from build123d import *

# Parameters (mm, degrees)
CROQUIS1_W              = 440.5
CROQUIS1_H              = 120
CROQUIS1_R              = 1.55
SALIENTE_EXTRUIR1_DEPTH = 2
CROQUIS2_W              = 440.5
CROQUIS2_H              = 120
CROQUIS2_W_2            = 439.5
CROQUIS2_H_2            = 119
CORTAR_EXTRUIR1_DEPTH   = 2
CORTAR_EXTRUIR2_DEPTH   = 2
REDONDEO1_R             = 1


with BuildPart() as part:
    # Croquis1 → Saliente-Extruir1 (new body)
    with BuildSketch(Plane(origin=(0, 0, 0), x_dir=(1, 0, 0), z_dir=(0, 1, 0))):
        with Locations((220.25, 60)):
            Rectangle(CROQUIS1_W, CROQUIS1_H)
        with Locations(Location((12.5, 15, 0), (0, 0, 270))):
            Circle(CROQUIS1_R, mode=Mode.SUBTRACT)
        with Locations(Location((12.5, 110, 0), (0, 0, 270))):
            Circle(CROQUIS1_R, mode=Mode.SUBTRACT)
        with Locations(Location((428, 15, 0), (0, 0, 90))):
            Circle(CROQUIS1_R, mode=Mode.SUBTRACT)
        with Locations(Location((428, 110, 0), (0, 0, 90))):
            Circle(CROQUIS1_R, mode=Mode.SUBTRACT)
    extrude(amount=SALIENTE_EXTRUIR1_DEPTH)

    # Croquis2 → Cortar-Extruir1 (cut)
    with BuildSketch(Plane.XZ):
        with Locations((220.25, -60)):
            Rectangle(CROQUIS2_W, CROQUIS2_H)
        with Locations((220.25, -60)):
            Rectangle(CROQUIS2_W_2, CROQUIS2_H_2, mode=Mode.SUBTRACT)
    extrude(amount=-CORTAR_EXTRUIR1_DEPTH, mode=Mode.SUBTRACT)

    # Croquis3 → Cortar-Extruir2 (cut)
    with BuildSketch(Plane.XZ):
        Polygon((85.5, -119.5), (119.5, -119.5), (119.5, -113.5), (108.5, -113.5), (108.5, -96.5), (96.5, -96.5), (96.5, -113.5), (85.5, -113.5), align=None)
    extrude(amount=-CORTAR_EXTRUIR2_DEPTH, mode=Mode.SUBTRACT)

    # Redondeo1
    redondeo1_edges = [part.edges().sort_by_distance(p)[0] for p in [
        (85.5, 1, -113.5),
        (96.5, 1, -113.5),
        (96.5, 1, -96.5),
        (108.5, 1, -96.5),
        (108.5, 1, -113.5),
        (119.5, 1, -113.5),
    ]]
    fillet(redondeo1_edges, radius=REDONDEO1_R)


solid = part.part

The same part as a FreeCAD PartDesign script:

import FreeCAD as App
import Part
import Sketcher
from FreeCAD import Vector
Q = App.Units.Quantity


def edges_at(feature, points):
    """Names of the edges that pass closest to the given points."""
    edges = feature.Shape.Edges
    near = lambda p: min(range(len(edges)), key=lambda i: edges[i].distToShape(Part.Vertex(*p))[0])
    return sorted({f"Edge{near(p) + 1}" for p in points})


def add_polygon(sketch, points):
    """Adds a closed chain of lines whose ends are joined by coincident constraints."""
    first, n = sketch.GeometryCount, len(points)
    for a, b in zip(points, points[1:] + points[:1]):
        sketch.addGeometry(Part.LineSegment(App.Vector(*a, 0), App.Vector(*b, 0)), False)
    for i in range(n):
        sketch.addConstraint(Sketcher.Constraint("Coincident", first + i, 2, first + (i + 1) % n, 1))

doc = App.newDocument("Part")
params = doc.addObject("Spreadsheet::Sheet", "Params")
for row, (alias, value) in enumerate([
    ("sketch1_diameter", "3.1 mm"),
    ("sketch1_height", "120 mm"),
    ("sketch1_width", "440.5 mm"),
    ("pad1_length", "2 mm"),
    ("sketch2_height", "120 mm"),
    ("sketch2_height2", "119 mm"),
    ("sketch2_width", "440.5 mm"),
    ("sketch2_width2", "439.5 mm"),
    ("pocket1_length", "2 mm"),
    ("sketch3_width", "34 mm"),
    ("sketch3_width2", "11 mm"),
    ("sketch3_height", "6 mm"),
    ("sketch3_height2", "17 mm"),
    ("pocket2_length", "2 mm"),
    ("fillet_radius", "1 mm"),
], start=1):
    params.set(f"A{row}", alias)
    params.set(f"B{row}", "=" + value)
    params.setAlias(f"B{row}", alias)

body = doc.addObject("PartDesign::Body", "Body")

sketch1 = doc.addObject("Sketcher::SketchObject", "Sketch")
body.addObject(sketch1)
sketch1.AttachmentSupport = (doc.XZ_Plane, [""])
sketch1.MapMode = "FlatFace"
add_polygon(sketch1, [(0, -120), (0, 0), (440.5, 0), (440.5, -120)])
sketch1.addGeometry(Part.Circle(Vector(12.5, -15, 0), Vector(0, 0, 1), 1.55), False)
sketch1.addGeometry(Part.Circle(Vector(428, -15, 0), Vector(0, 0, 1), 1.55), False)
sketch1.addGeometry(Part.Circle(Vector(12.5, -110, 0), Vector(0, 0, 1), 1.55), False)
sketch1.addGeometry(Part.Circle(Vector(428, -110, 0), Vector(0, 0, 1), 1.55), False)
sketch1.addConstraint([
    Sketcher.Constraint("Vertical", 0),
    Sketcher.Constraint("Horizontal", 1),
    Sketcher.Constraint("Vertical", 2),
    Sketcher.Constraint("Horizontal", 3),
    Sketcher.Constraint("Coincident", 0, 2, -1, 1),
    Sketcher.Constraint("Equal", 4, 5),
    Sketcher.Constraint("Equal", 5, 6),
    Sketcher.Constraint("Equal", 6, 7),
    Sketcher.Constraint("Horizontal", 4, 3, 5, 3),
    Sketcher.Constraint("Horizontal", 6, 3, 7, 3),
    Sketcher.Constraint("Vertical", 4, 3, 6, 3),
    Sketcher.Constraint("Vertical", 5, 3, 7, 3),
    Sketcher.Constraint("Diameter", 4, Q("3.1 mm")),
    Sketcher.Constraint("DistanceY", 0, 1, 0, 2, Q("120 mm")),
    Sketcher.Constraint("DistanceX", 1, 1, 1, 2, Q("440.5 mm")),
    Sketcher.Constraint("DistanceY", 4, 3, -1, 1, Q("15 mm")),
    Sketcher.Constraint("DistanceX", -1, 1, 5, 3, Q("428 mm")),
    Sketcher.Constraint("DistanceY", 6, 3, -1, 1, Q("110 mm")),
    Sketcher.Constraint("DistanceX", 4, 3, 1, 2, Q("428 mm")),
])
sketch1.setExpression("Constraints[16]", "Params.sketch1_diameter")
sketch1.setExpression("Constraints[17]", "Params.sketch1_height")
sketch1.setExpression("Constraints[18]", "Params.sketch1_width")
pad1 = doc.addObject("PartDesign::Pad", "Pad")
body.addObject(pad1)
pad1.Profile = sketch1
pad1.setExpression("Length", "Params.pad1_length")
pad1.Reversed = True

sketch2 = doc.addObject("Sketcher::SketchObject", "Sketch001")
body.addObject(sketch2)
sketch2.AttachmentSupport = (doc.XZ_Plane, [""])
sketch2.MapMode = "FlatFace"
add_polygon(sketch2, [(0, 0), (0, -120), (440.5, -120), (440.5, 0)])
add_polygon(sketch2, [(440, -119.5), (0.5, -119.5), (0.5, -0.5), (440, -0.5)])
sketch2.addConstraint([
    Sketcher.Constraint("Vertical", 0),
    Sketcher.Constraint("Horizontal", 1),
    Sketcher.Constraint("Vertical", 2),
    Sketcher.Constraint("Horizontal", 3),
    Sketcher.Constraint("Horizontal", 4),
    Sketcher.Constraint("Vertical", 5),
    Sketcher.Constraint("Horizontal", 6),
    Sketcher.Constraint("Vertical", 7),
    Sketcher.Constraint("Coincident", 3, 2, -1, 1),
    Sketcher.Constraint("DistanceY", 0, 2, 0, 1, Q("120 mm")),
    Sketcher.Constraint("DistanceY", 5, 1, 5, 2, Q("119 mm")),
    Sketcher.Constraint("DistanceX", 1, 1, 1, 2, Q("440.5 mm")),
    Sketcher.Constraint("DistanceX", 4, 2, 4, 1, Q("439.5 mm")),
    Sketcher.Constraint("DistanceX", -1, 1, 6, 2, Q("440 mm")),
    Sketcher.Constraint("DistanceY", 4, 2, -1, 1, Q("119.5 mm")),
])
sketch2.setExpression("Constraints[17]", "Params.sketch2_height")
sketch2.setExpression("Constraints[18]", "Params.sketch2_height2")
sketch2.setExpression("Constraints[19]", "Params.sketch2_width")
sketch2.setExpression("Constraints[20]", "Params.sketch2_width2")
pocket1 = doc.addObject("PartDesign::Pocket", "Pocket")
body.addObject(pocket1)
pocket1.Profile = sketch2
pocket1.setExpression("Length", "Params.pocket1_length")

sketch3 = doc.addObject("Sketcher::SketchObject", "Sketch002")
body.addObject(sketch3)
sketch3.AttachmentSupport = (doc.XZ_Plane, [""])
sketch3.MapMode = "FlatFace"
add_polygon(sketch3, [(85.5, -119.5), (119.5, -119.5), (119.5, -113.5), (108.5, -113.5), (108.5, -96.5), (96.5, -96.5), (96.5, -113.5), (85.5, -113.5)])
sketch3.addConstraint([
    Sketcher.Constraint("Horizontal", 0),
    Sketcher.Constraint("Vertical", 1),
    Sketcher.Constraint("Horizontal", 2),
    Sketcher.Constraint("Vertical", 3),
    Sketcher.Constraint("Horizontal", 4),
    Sketcher.Constraint("Vertical", 5),
    Sketcher.Constraint("Horizontal", 6),
    Sketcher.Constraint("Vertical", 7),
    Sketcher.Constraint("Horizontal", 2, 2, 5, 2),
    Sketcher.Constraint("Equal", 2, 6),
    Sketcher.Constraint("DistanceX", 0, 1, 0, 2, Q("34 mm")),
    Sketcher.Constraint("DistanceX", 2, 2, 2, 1, Q("11 mm")),
    Sketcher.Constraint("DistanceY", 1, 1, 1, 2, Q("6 mm")),
    Sketcher.Constraint("DistanceY", 3, 1, 3, 2, Q("17 mm")),
    Sketcher.Constraint("DistanceX", -1, 1, 0, 2, Q("119.5 mm")),
    Sketcher.Constraint("DistanceY", 0, 2, -1, 1, Q("119.5 mm")),
])
sketch3.setExpression("Constraints[18]", "Params.sketch3_width")
sketch3.setExpression("Constraints[19]", "Params.sketch3_width2")
sketch3.setExpression("Constraints[20]", "Params.sketch3_height")
sketch3.setExpression("Constraints[21]", "Params.sketch3_height2")
pocket2 = doc.addObject("PartDesign::Pocket", "Pocket001")
body.addObject(pocket2)
pocket2.Profile = sketch3
pocket2.setExpression("Length", "Params.pocket2_length")
doc.recompute()

fillet = doc.addObject("PartDesign::Fillet", "Fillet")
body.addObject(fillet)
fillet.Base = (pocket2, edges_at(pocket2, [
    (85.5, 1, -113.5),
    (96.5, 1, -113.5),
    (96.5, 1, -96.5),
    (108.5, 1, -96.5),
    (108.5, 1, -113.5),
    (119.5, 1, -113.5),
]))
fillet.setExpression("Radius", "Params.fillet_radius")

doc.recompute()
